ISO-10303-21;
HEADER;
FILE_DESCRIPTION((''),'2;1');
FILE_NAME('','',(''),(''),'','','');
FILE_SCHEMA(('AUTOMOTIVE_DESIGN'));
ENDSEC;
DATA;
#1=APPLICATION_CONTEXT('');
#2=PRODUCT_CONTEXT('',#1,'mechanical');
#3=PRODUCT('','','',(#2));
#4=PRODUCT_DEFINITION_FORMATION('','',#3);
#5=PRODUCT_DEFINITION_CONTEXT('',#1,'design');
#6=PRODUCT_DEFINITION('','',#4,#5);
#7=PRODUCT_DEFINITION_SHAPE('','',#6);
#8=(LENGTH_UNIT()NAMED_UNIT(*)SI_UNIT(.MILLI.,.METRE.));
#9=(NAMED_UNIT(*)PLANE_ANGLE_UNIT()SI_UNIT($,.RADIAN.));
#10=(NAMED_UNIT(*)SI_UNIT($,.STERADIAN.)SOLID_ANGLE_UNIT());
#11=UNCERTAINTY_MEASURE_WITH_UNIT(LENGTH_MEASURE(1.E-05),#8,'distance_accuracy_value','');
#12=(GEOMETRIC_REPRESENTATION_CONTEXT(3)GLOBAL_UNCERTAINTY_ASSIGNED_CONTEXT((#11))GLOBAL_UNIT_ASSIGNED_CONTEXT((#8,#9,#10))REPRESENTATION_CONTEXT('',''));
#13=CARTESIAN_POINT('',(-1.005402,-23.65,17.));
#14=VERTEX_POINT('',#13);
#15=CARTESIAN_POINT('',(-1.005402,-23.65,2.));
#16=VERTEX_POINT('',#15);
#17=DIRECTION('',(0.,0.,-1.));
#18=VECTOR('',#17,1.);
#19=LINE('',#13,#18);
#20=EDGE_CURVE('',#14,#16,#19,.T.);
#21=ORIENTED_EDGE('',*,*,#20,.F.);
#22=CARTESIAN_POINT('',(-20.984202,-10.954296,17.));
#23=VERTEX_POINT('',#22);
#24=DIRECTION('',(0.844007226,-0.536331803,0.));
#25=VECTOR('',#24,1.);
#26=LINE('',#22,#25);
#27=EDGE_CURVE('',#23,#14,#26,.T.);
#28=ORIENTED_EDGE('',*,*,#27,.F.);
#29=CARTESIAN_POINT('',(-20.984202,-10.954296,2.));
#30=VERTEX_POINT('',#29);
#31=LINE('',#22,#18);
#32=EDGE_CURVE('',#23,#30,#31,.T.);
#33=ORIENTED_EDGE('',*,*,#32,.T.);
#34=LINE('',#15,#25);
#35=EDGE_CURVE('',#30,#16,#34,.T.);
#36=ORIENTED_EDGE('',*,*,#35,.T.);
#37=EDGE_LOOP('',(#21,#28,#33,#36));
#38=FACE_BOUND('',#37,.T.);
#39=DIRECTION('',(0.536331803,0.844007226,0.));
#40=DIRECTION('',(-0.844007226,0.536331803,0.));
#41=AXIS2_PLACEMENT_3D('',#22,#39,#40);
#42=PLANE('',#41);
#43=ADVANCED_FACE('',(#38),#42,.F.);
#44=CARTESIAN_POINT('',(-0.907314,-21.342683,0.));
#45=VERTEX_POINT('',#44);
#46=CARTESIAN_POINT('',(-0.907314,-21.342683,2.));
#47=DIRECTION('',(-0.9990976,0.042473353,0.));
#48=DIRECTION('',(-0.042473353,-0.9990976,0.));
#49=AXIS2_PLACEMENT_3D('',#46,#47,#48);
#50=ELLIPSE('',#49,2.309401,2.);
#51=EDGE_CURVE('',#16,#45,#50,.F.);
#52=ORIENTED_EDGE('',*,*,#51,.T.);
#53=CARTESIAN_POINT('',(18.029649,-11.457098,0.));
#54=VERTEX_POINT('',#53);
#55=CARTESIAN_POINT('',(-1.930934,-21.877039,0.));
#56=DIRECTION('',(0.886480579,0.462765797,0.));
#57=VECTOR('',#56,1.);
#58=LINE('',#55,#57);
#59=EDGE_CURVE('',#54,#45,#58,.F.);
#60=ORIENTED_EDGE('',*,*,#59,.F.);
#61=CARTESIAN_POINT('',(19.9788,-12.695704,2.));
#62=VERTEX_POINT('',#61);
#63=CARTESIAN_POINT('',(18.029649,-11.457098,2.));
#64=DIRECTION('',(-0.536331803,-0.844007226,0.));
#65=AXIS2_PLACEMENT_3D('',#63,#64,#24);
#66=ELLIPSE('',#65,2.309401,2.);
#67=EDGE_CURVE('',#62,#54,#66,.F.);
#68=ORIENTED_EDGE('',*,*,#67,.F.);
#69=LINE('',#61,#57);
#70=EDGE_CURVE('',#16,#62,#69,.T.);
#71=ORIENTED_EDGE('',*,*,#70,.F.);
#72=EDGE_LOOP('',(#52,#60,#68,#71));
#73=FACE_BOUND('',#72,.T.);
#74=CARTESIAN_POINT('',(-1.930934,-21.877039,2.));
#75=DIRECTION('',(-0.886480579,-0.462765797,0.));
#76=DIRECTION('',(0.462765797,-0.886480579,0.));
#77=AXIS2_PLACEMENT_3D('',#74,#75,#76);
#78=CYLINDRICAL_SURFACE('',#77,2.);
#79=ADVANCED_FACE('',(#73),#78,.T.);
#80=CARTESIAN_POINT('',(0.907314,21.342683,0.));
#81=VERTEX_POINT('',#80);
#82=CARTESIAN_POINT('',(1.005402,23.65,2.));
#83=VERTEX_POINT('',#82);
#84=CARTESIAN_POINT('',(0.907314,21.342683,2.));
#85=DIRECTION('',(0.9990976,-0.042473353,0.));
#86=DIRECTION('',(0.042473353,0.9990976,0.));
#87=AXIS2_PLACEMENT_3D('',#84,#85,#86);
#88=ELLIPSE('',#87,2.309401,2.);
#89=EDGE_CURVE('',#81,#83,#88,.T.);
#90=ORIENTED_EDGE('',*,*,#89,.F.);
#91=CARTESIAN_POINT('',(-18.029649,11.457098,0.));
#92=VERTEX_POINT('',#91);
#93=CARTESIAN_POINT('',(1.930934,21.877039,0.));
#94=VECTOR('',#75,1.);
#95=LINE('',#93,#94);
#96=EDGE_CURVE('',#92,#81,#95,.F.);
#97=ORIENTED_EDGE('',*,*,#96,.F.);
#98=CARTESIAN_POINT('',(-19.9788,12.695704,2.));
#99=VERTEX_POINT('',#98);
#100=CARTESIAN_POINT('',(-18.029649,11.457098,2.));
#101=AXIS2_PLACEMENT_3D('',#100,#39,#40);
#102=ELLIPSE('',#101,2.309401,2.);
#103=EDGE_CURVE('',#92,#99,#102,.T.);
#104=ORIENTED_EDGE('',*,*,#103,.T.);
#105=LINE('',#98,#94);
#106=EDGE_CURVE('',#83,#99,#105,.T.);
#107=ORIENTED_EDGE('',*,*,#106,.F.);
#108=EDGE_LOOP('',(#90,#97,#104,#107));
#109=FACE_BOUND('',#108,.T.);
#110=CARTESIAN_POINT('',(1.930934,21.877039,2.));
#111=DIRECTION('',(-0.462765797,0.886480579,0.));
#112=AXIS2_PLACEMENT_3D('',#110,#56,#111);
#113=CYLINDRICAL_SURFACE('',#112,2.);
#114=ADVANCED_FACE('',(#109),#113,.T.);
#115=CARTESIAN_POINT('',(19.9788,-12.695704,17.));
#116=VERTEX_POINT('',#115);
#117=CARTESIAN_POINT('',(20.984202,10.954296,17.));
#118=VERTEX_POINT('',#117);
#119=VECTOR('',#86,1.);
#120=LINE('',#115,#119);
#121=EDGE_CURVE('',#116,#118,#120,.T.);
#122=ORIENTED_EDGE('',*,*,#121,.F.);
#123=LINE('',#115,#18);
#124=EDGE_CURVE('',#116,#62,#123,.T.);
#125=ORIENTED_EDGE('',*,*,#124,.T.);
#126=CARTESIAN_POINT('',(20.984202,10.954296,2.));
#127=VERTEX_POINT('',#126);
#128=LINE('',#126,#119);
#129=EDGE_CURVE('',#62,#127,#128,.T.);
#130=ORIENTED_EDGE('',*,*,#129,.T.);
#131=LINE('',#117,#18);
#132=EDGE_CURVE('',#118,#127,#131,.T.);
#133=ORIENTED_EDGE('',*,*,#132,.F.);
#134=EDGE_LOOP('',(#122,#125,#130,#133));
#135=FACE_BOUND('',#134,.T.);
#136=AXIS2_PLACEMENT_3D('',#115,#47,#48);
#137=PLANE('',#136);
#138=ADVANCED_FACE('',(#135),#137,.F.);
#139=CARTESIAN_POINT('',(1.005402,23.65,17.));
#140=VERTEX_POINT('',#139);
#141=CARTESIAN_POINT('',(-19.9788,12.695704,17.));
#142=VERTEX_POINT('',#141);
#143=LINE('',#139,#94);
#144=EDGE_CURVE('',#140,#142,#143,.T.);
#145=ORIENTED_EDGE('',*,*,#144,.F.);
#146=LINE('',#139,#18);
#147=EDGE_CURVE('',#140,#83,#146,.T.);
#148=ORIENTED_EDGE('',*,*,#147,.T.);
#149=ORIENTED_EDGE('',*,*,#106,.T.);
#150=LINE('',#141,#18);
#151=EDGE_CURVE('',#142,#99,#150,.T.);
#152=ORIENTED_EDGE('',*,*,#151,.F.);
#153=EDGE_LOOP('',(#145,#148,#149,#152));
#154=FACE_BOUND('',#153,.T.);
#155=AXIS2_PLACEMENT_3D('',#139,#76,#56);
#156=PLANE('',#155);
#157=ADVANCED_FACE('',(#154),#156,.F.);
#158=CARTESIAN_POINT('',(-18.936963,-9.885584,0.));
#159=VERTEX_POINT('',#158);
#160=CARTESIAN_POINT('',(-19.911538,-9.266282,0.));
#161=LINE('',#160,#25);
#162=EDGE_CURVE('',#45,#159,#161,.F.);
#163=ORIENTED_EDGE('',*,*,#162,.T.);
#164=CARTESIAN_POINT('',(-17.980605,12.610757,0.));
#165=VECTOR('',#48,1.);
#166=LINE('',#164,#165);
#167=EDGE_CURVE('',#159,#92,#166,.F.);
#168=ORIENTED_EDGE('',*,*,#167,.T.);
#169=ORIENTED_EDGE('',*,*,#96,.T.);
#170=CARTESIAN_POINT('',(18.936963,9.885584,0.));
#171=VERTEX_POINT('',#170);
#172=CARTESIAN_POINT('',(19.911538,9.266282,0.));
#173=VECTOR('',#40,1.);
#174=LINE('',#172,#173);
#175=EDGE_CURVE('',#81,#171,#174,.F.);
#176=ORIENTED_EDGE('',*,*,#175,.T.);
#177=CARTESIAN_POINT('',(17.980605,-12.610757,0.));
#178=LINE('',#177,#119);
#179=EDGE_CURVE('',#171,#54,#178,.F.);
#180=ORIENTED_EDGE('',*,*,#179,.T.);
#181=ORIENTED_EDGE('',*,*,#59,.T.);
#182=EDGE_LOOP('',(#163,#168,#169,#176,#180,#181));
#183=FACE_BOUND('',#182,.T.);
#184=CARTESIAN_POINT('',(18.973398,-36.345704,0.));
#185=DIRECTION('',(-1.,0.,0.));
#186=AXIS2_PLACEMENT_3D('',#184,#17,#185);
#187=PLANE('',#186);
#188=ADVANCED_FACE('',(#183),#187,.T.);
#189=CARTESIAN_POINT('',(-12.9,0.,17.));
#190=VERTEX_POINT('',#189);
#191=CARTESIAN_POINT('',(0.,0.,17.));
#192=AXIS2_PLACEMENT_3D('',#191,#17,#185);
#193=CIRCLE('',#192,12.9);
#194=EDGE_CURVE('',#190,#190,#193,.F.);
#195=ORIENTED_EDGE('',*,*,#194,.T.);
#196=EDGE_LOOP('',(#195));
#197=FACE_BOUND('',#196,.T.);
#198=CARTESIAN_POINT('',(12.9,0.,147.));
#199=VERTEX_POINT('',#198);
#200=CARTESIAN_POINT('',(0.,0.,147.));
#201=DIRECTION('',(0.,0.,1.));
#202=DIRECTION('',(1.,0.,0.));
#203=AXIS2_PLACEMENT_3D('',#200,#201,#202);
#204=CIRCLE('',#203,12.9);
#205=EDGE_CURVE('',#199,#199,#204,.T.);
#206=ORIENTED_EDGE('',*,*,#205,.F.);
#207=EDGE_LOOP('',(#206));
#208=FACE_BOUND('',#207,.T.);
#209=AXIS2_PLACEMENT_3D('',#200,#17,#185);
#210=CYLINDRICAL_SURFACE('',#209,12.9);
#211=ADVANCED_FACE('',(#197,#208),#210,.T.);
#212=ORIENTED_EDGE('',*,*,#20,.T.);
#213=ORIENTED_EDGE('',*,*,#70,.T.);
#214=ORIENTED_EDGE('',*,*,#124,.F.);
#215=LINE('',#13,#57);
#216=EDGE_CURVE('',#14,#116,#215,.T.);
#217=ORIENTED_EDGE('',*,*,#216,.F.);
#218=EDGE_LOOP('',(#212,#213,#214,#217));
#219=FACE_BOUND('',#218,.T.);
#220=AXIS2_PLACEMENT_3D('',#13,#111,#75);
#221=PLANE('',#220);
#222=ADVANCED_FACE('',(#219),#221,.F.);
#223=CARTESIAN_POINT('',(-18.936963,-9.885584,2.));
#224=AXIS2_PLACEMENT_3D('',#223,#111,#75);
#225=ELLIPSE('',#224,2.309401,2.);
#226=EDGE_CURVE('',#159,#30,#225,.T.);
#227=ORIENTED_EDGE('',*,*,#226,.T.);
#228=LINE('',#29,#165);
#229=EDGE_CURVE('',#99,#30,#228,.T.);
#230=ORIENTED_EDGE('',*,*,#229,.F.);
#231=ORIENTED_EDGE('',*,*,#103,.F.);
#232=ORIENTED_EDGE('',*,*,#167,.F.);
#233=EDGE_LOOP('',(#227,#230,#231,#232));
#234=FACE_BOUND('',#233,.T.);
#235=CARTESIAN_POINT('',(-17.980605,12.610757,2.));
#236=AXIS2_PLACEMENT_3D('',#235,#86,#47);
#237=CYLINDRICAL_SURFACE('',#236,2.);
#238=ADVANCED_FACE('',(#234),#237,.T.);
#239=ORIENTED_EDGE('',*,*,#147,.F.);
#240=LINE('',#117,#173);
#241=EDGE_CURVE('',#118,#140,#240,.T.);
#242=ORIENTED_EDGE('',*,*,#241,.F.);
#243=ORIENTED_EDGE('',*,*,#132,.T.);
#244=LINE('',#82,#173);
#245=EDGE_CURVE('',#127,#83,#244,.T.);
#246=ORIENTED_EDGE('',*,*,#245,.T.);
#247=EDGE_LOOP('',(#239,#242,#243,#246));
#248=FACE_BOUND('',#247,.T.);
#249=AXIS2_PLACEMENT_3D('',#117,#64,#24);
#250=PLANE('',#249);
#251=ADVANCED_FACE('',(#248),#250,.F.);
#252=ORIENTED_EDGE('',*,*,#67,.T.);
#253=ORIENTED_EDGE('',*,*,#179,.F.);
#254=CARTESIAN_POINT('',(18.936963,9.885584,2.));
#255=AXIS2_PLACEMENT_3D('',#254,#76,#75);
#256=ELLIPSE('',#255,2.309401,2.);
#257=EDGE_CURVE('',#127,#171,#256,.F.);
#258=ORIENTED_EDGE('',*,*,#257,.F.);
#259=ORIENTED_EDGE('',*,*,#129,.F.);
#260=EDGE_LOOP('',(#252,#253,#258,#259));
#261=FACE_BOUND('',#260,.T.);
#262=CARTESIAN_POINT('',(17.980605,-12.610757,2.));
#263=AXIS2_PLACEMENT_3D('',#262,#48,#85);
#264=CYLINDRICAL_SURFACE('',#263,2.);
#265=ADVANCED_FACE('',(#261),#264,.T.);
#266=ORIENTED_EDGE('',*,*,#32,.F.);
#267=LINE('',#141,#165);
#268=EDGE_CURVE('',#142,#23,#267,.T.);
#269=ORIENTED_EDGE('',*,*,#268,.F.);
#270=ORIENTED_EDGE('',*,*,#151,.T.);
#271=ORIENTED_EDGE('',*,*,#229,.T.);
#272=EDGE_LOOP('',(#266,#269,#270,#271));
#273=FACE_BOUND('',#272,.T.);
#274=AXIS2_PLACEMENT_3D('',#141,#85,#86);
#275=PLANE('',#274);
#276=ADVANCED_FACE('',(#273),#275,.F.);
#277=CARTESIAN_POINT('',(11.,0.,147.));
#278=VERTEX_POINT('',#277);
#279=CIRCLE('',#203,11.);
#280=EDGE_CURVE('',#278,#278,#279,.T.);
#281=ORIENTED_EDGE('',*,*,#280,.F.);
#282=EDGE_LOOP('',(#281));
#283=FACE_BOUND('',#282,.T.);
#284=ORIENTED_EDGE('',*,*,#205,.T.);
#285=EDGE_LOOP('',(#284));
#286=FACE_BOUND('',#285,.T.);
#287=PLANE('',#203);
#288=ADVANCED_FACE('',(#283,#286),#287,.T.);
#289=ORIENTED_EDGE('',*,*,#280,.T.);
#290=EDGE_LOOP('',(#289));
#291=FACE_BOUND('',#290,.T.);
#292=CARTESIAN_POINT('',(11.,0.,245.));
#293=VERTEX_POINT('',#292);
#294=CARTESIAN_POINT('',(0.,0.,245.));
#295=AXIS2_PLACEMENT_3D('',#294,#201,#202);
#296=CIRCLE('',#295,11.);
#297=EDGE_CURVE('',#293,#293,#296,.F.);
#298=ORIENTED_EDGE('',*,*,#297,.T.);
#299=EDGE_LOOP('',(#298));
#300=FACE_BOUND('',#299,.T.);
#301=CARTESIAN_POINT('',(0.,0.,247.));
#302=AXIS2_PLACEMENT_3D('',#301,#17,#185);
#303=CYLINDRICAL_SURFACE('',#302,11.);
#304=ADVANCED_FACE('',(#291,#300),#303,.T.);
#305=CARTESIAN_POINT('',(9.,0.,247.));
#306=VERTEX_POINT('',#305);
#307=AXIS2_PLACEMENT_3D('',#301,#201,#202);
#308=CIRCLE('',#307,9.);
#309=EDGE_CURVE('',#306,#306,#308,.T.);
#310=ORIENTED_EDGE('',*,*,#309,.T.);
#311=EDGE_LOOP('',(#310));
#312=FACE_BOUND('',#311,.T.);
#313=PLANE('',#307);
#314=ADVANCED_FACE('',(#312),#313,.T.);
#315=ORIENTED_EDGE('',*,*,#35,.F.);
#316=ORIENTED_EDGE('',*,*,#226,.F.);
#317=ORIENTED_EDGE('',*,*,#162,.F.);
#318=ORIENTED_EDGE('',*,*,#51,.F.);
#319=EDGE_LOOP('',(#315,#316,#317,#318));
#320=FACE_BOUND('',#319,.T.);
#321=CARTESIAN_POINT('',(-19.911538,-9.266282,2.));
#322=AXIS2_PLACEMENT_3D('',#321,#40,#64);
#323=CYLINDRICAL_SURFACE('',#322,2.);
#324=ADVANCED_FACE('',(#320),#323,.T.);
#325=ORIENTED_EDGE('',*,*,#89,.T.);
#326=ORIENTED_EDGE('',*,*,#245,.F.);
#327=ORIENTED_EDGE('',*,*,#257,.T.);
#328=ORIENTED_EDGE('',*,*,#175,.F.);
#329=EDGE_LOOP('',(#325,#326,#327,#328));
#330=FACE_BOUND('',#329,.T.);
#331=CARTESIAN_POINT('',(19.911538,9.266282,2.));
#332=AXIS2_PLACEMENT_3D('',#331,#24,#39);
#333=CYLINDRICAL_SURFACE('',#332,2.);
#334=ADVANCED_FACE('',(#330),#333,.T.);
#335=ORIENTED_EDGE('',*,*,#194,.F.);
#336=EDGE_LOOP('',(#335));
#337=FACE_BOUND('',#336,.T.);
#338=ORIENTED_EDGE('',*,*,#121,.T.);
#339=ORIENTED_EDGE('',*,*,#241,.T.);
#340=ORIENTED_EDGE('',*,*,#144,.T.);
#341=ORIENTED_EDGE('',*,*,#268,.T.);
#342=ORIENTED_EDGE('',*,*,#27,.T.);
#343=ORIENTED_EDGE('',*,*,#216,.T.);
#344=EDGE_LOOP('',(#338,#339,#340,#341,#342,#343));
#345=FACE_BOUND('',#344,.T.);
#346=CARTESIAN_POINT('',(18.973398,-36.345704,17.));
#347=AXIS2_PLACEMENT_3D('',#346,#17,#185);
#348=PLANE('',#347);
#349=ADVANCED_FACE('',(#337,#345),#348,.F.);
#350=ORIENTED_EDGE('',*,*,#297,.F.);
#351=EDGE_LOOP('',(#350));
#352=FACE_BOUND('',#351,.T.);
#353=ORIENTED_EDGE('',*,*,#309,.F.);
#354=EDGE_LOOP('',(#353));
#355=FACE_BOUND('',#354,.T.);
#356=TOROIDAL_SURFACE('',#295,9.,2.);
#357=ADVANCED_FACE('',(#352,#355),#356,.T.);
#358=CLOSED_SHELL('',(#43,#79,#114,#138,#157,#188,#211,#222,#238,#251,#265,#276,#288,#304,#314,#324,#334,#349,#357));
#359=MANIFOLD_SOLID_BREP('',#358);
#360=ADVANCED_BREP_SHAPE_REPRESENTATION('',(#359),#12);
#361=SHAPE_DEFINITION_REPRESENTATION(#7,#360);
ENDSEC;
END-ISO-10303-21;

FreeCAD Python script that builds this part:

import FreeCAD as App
import Part
import Sketcher

V = App.Vector
Q = App.Units.Quantity


def edges_at(feature, points):
    """Names of the edges that pass closest to the given points."""
    edges = feature.Shape.Edges
    near = lambda p: min(range(len(edges)), key=lambda i: edges[i].distToShape(Part.Vertex(*p))[0])
    return sorted({f"Edge{near(p) + 1}" for p in points})

doc = App.newDocument("Part")
body = doc.addObject("PartDesign::Body", "Body")

# Sketch on XY plane
sketch1 = doc.addObject("Sketcher::SketchObject", "Sketch")
body.addObject(sketch1)
sketch1.AttachmentSupport = (doc.XY_Plane, [""])
sketch1.MapMode = "FlatFace"
sketch1.addGeometry([
    Part.LineSegment(V(21, 11, 0), V(1, 24, 0)),  # 0
    Part.LineSegment(V(1, 24, 0), V(-20, 13, 0)),  # 1
    Part.LineSegment(V(-20, 13, 0), V(-21, -11, 0)),  # 2
    Part.LineSegment(V(-21, -11, 0), V(-1, -24, 0)),  # 3
    Part.LineSegment(V(-1, -24, 0), V(20, -13, 0)),  # 4
    Part.LineSegment(V(20, -13, 0), V(21, 11, 0)),  # 5
], False)
sketch1.addConstraint([
    Sketcher.Constraint("Coincident", 0, 2, 1, 1),
    Sketcher.Constraint("Coincident", 1, 2, 2, 1),
    Sketcher.Constraint("Coincident", 2, 2, 3, 1),
    Sketcher.Constraint("Coincident", 3, 2, 4, 1),
    Sketcher.Constraint("Coincident", 4, 2, 5, 1),
    Sketcher.Constraint("Coincident", 5, 2, 0, 1),
    Sketcher.Constraint("Symmetric", 0, 2, 3, 2, -1, 1),
    Sketcher.Constraint("Symmetric", 1, 2, 4, 2, -1, 1),
    Sketcher.Constraint("Symmetric", 2, 2, 5, 2, -1, 1),
    Sketcher.Constraint("Equal", 0, 1),
    Sketcher.Constraint("Equal", 1, 2),
    Sketcher.Constraint("DistanceY", 3, 2, 0, 2, Q("47.3 mm")),
    Sketcher.Constraint("DistanceY", 2, 2, 1, 2, Q("23.65 mm")),
    Sketcher.Constraint("DistanceX", 2, 2, 4, 2, Q("40.963002 mm")),
    Sketcher.Constraint("DistanceX", 1, 2, -1, 1, Q("19.9788 mm")),
])
pad1 = doc.addObject("PartDesign::Pad", "Pad")
body.addObject(pad1)
pad1.Profile = sketch1
pad1.Length = 17

# Sketch on XY plane
sketch2 = doc.addObject("Sketcher::SketchObject", "Sketch001")
body.addObject(sketch2)
sketch2.AttachmentSupport = (doc.XY_Plane, [""])
sketch2.MapMode = "FlatFace"
sketch2.AttachmentOffset = App.Placement(V(0, 0, 17), App.Rotation())
sketch2.addGeometry(Part.Circle(V(0, 0, 0), V(0, 0, 1), 13), False)
sketch2.addConstraint([
    Sketcher.Constraint("Coincident", 0, 3, -1, 1),
    Sketcher.Constraint("Diameter", 0, Q("25.8 mm")),
])
pad2 = doc.addObject("PartDesign::Pad", "Pad001")
body.addObject(pad2)
pad2.Profile = sketch2
pad2.Length = 130
doc.recompute()

fillet = doc.addObject("PartDesign::Fillet", "Fillet")
body.addObject(fillet)
fillet.Base = (pad2, edges_at(pad2, [
    (9.487, -18.173, 0),
    (-10.995, -17.302, 0),
    (-20.482, 0.871, 0),
    (-9.487, 18.173, 0),
    (10.995, 17.302, 0),
    (20.482, -0.871, 0),
]))
fillet.Radius = 2

# Sketch on XY plane
sketch3 = doc.addObject("Sketcher::SketchObject", "Sketch002")
body.addObject(sketch3)
sketch3.AttachmentSupport = (doc.XY_Plane, [""])
sketch3.MapMode = "FlatFace"
sketch3.AttachmentOffset = App.Placement(V(0, 0, 147), App.Rotation())
sketch3.addGeometry(Part.Circle(V(0, 0, 0), V(0, 0, 1), 11), False)
sketch3.addConstraint([
    Sketcher.Constraint("Coincident", 0, 3, -1, 1),
    Sketcher.Constraint("Diameter", 0, Q("22 mm")),
])
pad3 = doc.addObject("PartDesign::Pad", "Pad002")
body.addObject(pad3)
pad3.Profile = sketch3
pad3.Length = 100
doc.recompute()

fillet2 = doc.addObject("PartDesign::Fillet", "Fillet001")
body.addObject(fillet2)
fillet2.Base = (pad3, edges_at(pad3, [(-11, 0, 247)]))
fillet2.Radius = 2

doc.recompute()
